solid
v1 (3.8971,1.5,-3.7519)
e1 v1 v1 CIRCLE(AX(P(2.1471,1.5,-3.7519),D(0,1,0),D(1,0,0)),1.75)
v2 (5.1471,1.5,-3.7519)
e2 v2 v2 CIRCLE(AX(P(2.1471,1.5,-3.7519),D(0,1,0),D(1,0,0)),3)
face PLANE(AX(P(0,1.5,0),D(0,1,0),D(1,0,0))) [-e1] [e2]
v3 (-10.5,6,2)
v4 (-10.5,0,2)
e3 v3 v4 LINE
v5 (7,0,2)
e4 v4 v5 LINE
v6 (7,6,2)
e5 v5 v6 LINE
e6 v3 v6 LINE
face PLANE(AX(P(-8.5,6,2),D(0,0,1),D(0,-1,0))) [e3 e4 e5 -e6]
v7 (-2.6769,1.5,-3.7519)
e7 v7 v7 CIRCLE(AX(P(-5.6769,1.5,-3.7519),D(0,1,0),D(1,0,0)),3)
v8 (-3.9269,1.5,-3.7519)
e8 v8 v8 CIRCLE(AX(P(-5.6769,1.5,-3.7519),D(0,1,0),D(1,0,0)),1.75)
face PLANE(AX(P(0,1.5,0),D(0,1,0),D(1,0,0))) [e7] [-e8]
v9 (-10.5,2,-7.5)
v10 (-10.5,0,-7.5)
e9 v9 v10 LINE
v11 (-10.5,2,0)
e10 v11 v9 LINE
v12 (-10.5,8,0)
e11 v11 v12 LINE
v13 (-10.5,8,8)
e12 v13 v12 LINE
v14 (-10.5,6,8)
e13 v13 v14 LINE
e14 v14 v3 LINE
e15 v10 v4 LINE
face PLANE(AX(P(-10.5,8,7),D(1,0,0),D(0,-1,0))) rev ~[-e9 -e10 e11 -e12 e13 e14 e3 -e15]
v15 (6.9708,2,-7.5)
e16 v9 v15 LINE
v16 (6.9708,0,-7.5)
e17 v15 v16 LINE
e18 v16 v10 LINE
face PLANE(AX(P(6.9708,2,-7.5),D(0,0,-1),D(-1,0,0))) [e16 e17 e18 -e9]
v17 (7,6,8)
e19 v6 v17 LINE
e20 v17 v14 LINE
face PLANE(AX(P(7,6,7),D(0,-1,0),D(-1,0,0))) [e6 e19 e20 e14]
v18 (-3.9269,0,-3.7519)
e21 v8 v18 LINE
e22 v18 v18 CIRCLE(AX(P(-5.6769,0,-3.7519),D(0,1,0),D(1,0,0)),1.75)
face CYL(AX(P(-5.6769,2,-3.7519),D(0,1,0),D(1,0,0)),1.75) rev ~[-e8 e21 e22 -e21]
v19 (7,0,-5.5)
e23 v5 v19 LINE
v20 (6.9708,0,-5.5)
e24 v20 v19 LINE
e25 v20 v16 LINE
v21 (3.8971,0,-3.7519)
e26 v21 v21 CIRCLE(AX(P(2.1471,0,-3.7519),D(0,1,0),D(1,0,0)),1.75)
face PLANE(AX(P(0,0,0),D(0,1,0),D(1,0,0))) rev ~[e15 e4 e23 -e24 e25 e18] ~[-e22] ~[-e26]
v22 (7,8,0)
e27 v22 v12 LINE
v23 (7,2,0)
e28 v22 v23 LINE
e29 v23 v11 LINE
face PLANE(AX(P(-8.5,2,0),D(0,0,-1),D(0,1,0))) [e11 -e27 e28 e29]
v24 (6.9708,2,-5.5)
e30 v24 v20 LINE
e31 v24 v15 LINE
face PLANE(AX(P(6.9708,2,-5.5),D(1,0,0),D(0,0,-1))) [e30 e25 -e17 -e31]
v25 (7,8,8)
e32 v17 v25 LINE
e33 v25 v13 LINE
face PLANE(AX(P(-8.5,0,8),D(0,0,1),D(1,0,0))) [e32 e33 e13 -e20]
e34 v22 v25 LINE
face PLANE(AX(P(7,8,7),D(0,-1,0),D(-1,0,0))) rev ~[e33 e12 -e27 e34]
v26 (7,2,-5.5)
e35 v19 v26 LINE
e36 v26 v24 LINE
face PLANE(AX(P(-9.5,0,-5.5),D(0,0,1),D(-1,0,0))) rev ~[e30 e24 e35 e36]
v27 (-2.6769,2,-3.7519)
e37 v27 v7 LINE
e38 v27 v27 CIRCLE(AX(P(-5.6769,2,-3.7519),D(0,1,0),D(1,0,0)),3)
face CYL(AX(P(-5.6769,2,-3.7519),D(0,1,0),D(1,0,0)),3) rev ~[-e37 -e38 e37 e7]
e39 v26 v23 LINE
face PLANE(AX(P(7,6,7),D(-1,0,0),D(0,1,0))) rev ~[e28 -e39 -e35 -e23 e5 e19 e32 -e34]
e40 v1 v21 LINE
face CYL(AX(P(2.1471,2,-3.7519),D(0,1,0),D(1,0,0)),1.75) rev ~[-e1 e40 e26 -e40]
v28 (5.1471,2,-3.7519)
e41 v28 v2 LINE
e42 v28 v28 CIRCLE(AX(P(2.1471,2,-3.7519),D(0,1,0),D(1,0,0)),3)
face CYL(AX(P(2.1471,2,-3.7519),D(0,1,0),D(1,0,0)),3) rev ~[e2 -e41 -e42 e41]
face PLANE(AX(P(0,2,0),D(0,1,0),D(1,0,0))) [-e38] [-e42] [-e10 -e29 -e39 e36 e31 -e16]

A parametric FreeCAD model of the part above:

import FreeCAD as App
import Part
import Sketcher

V = App.Vector

doc = App.newDocument("Part")
body = doc.addObject("PartDesign::Body", "Body")

# Sketch on XZ plane
sketch1 = body.newObject("Sketcher::SketchObject", "Sketch")
sketch1.AttachmentSupport = (doc.getObject("XZ_Plane"), [""])
sketch1.MapMode = "FlatFace"
sketch1.addGeometry([
    Part.LineSegment(V(-10, 0, 0), V(7, 0, 0)),
    Part.LineSegment(V(7, 0, 0), V(7, -6, 0)),
    Part.LineSegment(V(7, -6, 0), V(-10, -6, 0)),
    Part.LineSegment(V(-10, -6, 0), V(-10, 0, 0)),
], False)
sketch1.addConstraint([
    Sketcher.Constraint("Coincident", 0, 2, 1, 1),
    Sketcher.Constraint("Coincident", 1, 2, 2, 1),
    Sketcher.Constraint("Coincident", 2, 2, 3, 1),
    Sketcher.Constraint("Coincident", 3, 2, 0, 1),
    Sketcher.Constraint("Horizontal", 0),
    Sketcher.Constraint("Vertical", 1),
    Sketcher.Constraint("Horizontal", 2),
    Sketcher.Constraint("Vertical", 3),
    Sketcher.Constraint("PointOnObject", 0, 2, -1),
    Sketcher.Constraint("DistanceX", 0, 1, 0, 2, 17.5),
    Sketcher.Constraint("DistanceY", 1, 2, 1, 1, 5.5),
    Sketcher.Constraint("DistanceX", -1, 1, 0, 2, 7.0),
])
pad1 = body.newObject("PartDesign::Pad", "Pad")
pad1.Profile = sketch1
pad1.Length = 2
pad1.Reversed = True

# Sketch on XY plane
sketch2 = body.newObject("Sketcher::SketchObject", "Sketch001")
sketch2.AttachmentSupport = (doc.getObject("XY_Plane"), [""])
sketch2.MapMode = "FlatFace"
sketch2.addGeometry([
    Part.LineSegment(V(5, 0, 0), V(5, 2, 0)),
    Part.LineSegment(V(5, 2, 0), V(-8.5, 2, 0)),
    Part.LineSegment(V(-8.5, 2, 0), V(-8.5, 0, 0)),
    Part.LineSegment(V(-8.5, 0, 0), V(5, 0, 0)),
], False)
sketch2.addConstraint([
    Sketcher.Constraint("Coincident", 0, 2, 1, 1),
    Sketcher.Constraint("Coincident", 1, 2, 2, 1),
    Sketcher.Constraint("Coincident", 2, 2, 3, 1),
    Sketcher.Constraint("Coincident", 3, 2, 0, 1),
    Sketcher.Constraint("Vertical", 0),
    Sketcher.Constraint("Horizontal", 1),
    Sketcher.Constraint("Vertical", 2),
    Sketcher.Constraint("Horizontal", 3),
    Sketcher.Constraint("PointOnObject", 2, 2, -1),
    Sketcher.Constraint("DistanceY", 0, 1, 0, 2, 2.0),
    Sketcher.Constraint("DistanceX", 1, 2, 1, 1, 13.5),
    Sketcher.Constraint("DistanceX", -1, 1, 0, 2, 5.0),
])
pad2 = body.newObject("PartDesign::Pad", "Pad001")
pad2.Profile = sketch2
pad2.Length = 2

# Sketch on XZ plane
sketch3 = body.newObject("Sketcher::SketchObject", "Sketch002")
sketch3.AttachmentSupport = (doc.getObject("XZ_Plane"), [""])
sketch3.MapMode = "FlatFace"
sketch3.AttachmentOffset = App.Placement(V(0, 0, -2), App.Rotation())
sketch3.addGeometry([
    Part.LineSegment(V(-8.5, 0, 0), V(-8.5, 2, 0)),
    Part.LineSegment(V(-8.5, 2, 0), V(5, 2, 0)),
    Part.LineSegment(V(5, 2, 0), V(5, 0, 0)),
    Part.LineSegment(V(5, 0, 0), V(-8.5, 0, 0)),
], False)
sketch3.addConstraint([
    Sketcher.Constraint("Coincident", 0, 2, 1, 1),
    Sketcher.Constraint("Coincident", 1, 2, 2, 1),
    Sketcher.Constraint("Coincident", 2, 2, 3, 1),
    Sketcher.Constraint("Coincident", 3, 2, 0, 1),
    Sketcher.Constraint("Vertical", 0),
    Sketcher.Constraint("Horizontal", 1),
    Sketcher.Constraint("Vertical", 2),
    Sketcher.Constraint("Horizontal", 3),
    Sketcher.Constraint("PointOnObject", 2, 2, -1),
    Sketcher.Constraint("DistanceY", 0, 1, 0, 2, 2.0),
    Sketcher.Constraint("DistanceX", 1, 1, 1, 2, 13.5),
    Sketcher.Constraint("DistanceX", -1, 1, 1, 2, 5.0),
])
pad3 = body.newObject("PartDesign::Pad", "Pad002")
pad3.Profile = sketch3
pad3.Length = 6
pad3.Reversed = True

# Sketch on XY plane
sketch4 = body.newObject("Sketcher::SketchObject", "Sketch003")
sketch4.AttachmentSupport = (doc.getObject("XY_Plane"), [""])
sketch4.MapMode = "FlatFace"
sketch4.AttachmentOffset = App.Placement(V(0, 0, 2), App.Rotation())
sketch4.addGeometry([
    Part.LineSegment(V(-8.5, 8, 0), V(-8.5, 6, 0)),
    Part.LineSegment(V(-8.5, 6, 0), V(5, 6, 0)),
    Part.LineSegment(V(5, 6, 0), V(5, 8, 0)),
    Part.LineSegment(V(5, 8, 0), V(-8.5, 8, 0)),
], False)
sketch4.addConstraint([
    Sketcher.Constraint("Coincident", 0, 2, 1, 1),
    Sketcher.Constraint("Coincident", 1, 2, 2, 1),
    Sketcher.Constraint("Coincident", 2, 2, 3, 1),
    Sketcher.Constraint("Coincident", 3, 2, 0, 1),
    Sketcher.Constraint("Vertical", 0),
    Sketcher.Constraint("Horizontal", 1),
    Sketcher.Constraint("Vertical", 2),
    Sketcher.Constraint("Horizontal", 3),
    Sketcher.Constraint("DistanceY", 0, 2, 0, 1, 2.0),
    Sketcher.Constraint("DistanceX", 1, 1, 1, 2, 13.5),
    Sketcher.Constraint("DistanceY", -1, 1, 0, 2, 6.0),
    Sketcher.Constraint("DistanceX", -1, 1, 1, 2, 5.0),
])
pad4 = body.newObject("PartDesign::Pad", "Pad003")
pad4.Profile = sketch4
pad4.Length = 5

# Sketch on XY plane
sketch5 = body.newObject("Sketcher::SketchObject", "Sketch004")
sketch5.AttachmentSupport = (doc.getObject("XY_Plane"), [""])
sketch5.MapMode = "FlatFace"
sketch5.AttachmentOffset = App.Placement(V(0, 0, -5.5), App.Rotation())
sketch5.addGeometry([
    Part.LineSegment(V(5, 0, 0), V(-8.5, 0, 0)),
    Part.LineSegment(V(-8.5, 0, 0), V(-8.5, 2, 0)),
    Part.LineSegment(V(-8.5, 2, 0), V(5, 2, 0)),
    Part.LineSegment(V(5, 2, 0), V(5, 0, 0)),
], False)
sketch5.addConstraint([
    Sketcher.Constraint("Coincident", 0, 2, 1, 1),
    Sketcher.Constraint("Coincident", 1, 2, 2, 1),
    Sketcher.Constraint("Coincident", 2, 2, 3, 1),
    Sketcher.Constraint("Coincident", 3, 2, 0, 1),
    Sketcher.Constraint("Horizontal", 0),
    Sketcher.Constraint("Vertical", 1),
    Sketcher.Constraint("Horizontal", 2),
    Sketcher.Constraint("Vertical", 3),
    Sketcher.Constraint("PointOnObject", 0, 2, -1),
    Sketcher.Constraint("DistanceY", 1, 1, 1, 2, 2.0),
    Sketcher.Constraint("DistanceX", 0, 2, 0, 1, 13.5),
    Sketcher.Constraint("DistanceX", -1, 1, 2, 2, 5.0),
])
pad5 = body.newObject("PartDesign::Pad", "Pad004")
pad5.Profile = sketch5
pad5.Length = 2
pad5.Reversed = True

# Sketch on YZ plane
sketch6 = body.newObject("Sketcher::SketchObject", "Sketch005")
sketch6.AttachmentSupport = (doc.getObject("YZ_Plane"), [""])
sketch6.MapMode = "FlatFace"
sketch6.AttachmentOffset = App.Placement(V(0, 0, 5), App.Rotation())
sketch6.addGeometry([
    Part.LineSegment(V(8, 0, 0), V(8, 7, 0)),  # 0
    Part.LineSegment(V(8, 7, 0), V(6, 7, 0)),  # 1
    Part.LineSegment(V(6, 7, 0), V(6, 2, 0)),  # 2
    Part.LineSegment(V(6, 2, 0), V(0, 2, 0)),  # 3
    Part.LineSegment(V(0, 2, 0), V(0, 0, 0)),  # 4
    Part.LineSegment(V(0, 0, 0), V(8, 0, 0)),  # 5
], False)
sketch6.addConstraint([
    Sketcher.Constraint("Coincident", 0, 2, 1, 1),
    Sketcher.Constraint("Coincident", 1, 2, 2, 1),
    Sketcher.Constraint("Coincident", 2, 2, 3, 1),
    Sketcher.Constraint("Coincident", 3, 2, 4, 1),
    Sketcher.Constraint("Coincident", 4, 2, 5, 1),
    Sketcher.Constraint("Coincident", 5, 2, 0, 1),
    Sketcher.Constraint("Vertical", 0),
    Sketcher.Constraint("Horizontal", 1),
    Sketcher.Constraint("Vertical", 2),
    Sketcher.Constraint("Horizontal", 3),
    Sketcher.Constraint("Vertical", 4),
    Sketcher.Constraint("Horizontal", 5),
    Sketcher.Constraint("Coincident", 4, 2, -1, 1),
    Sketcher.Constraint("Equal", 1, 4),
    Sketcher.Constraint("DistanceX", 1, 2, 1, 1, 2.0),
    Sketcher.Constraint("DistanceX", 3, 2, 3, 1, 6.0),
    Sketcher.Constraint("DistanceY", 0, 1, 0, 2, 7.0),
])
pad6 = body.newObject("PartDesign::Pad", "Pad005")
pad6.Profile = sketch6
pad6.Length = 2

# Sketch on YZ plane
sketch7 = body.newObject("Sketcher::SketchObject", "Sketch006")
sketch7.AttachmentSupport = (doc.getObject("YZ_Plane"), [""])
sketch7.MapMode = "FlatFace"
sketch7.AttachmentOffset = App.Placement(V(0, 0, -8.5), App.Rotation())
sketch7.addGeometry([
    Part.LineSegment(V(8, 7, 0), V(8, 0, 0)),  # 0
    Part.LineSegment(V(8, 0, 0), V(0, 0, 0)),  # 1
    Part.LineSegment(V(0, 0, 0), V(0, 2, 0)),  # 2
    Part.LineSegment(V(0, 2, 0), V(6, 2, 0)),  # 3
    Part.LineSegment(V(6, 2, 0), V(6, 7, 0)),  # 4
    Part.LineSegment(V(6, 7, 0), V(8, 7, 0)),  # 5
], False)
sketch7.addConstraint([
    Sketcher.Constraint("Coincident", 0, 2, 1, 1),
    Sketcher.Constraint("Coincident", 1, 2, 2, 1),
    Sketcher.Constraint("Coincident", 2, 2, 3, 1),
    Sketcher.Constraint("Coincident", 3, 2, 4, 1),
    Sketcher.Constraint("Coincident", 4, 2, 5, 1),
    Sketcher.Constraint("Coincident", 5, 2, 0, 1),
    Sketcher.Constraint("Vertical", 0),
    Sketcher.Constraint("Horizontal", 1),
    Sketcher.Constraint("Vertical", 2),
    Sketcher.Constraint("Horizontal", 3),
    Sketcher.Constraint("Vertical", 4),
    Sketcher.Constraint("Horizontal", 5),
    Sketcher.Constraint("Coincident", 1, 2, -1, 1),
    Sketcher.Constraint("Equal", 5, 2),
    Sketcher.Constraint("DistanceX", 1, 2, 1, 1, 8.0),
    Sketcher.Constraint("DistanceX", 3, 1, 3, 2, 6.0),
    Sketcher.Constraint("DistanceY", 0, 2, 0, 1, 7.0),
])
pad7 = body.newObject("PartDesign::Pad", "Pad006")
pad7.Profile = sketch7
pad7.Length = 2
pad7.Reversed = True

# Sketch on XZ plane
sketch8 = body.newObject("Sketcher::SketchObject", "Sketch007")
sketch8.AttachmentSupport = (doc.getObject("XZ_Plane"), [""])
sketch8.MapMode = "FlatFace"
sketch8.AttachmentOffset = App.Placement(V(0, 0, -2), App.Rotation())
sketch8.addGeometry([
    Part.LineSegment(V(-10.5, -5.5, 0), V(7, -5.5, 0)),
    Part.LineSegment(V(7, -5.5, 0), V(7, -7.5, 0)),
    Part.LineSegment(V(7, -7.5, 0), V(-10.5, -7.5, 0)),
    Part.LineSegment(V(-10.5, -7.5, 0), V(-10.5, -5.5, 0)),
], False)
sketch8.addConstraint([
    Sketcher.Constraint("Coincident", 0, 2, 1, 1),
    Sketcher.Constraint("Coincident", 1, 2, 2, 1),
    Sketcher.Constraint("Coincident", 2, 2, 3, 1),
    Sketcher.Constraint("Coincident", 3, 2, 0, 1),
    Sketcher.Constraint("Horizontal", 0),
    Sketcher.Constraint("Vertical", 1),
    Sketcher.Constraint("Horizontal", 2),
    Sketcher.Constraint("Vertical", 3),
    Sketcher.Constraint("DistanceY", 1, 2, 1, 1, 2.0),
    Sketcher.Constraint("DistanceY", 0, 2, -1, 1, 5.5),
    Sketcher.Constraint("DistanceX", 2, 2, -1, 1, 10.5),
    Sketcher.Constraint("DistanceX", 0, 1, 0, 2, 17.4708),
])
pad8 = body.newObject("PartDesign::Pad", "Pad007")
pad8.Profile = sketch8
pad8.Length = 2

# Sketch on XZ plane
sketch9 = body.newObject("Sketcher::SketchObject", "Sketch008")
sketch9.AttachmentSupport = (doc.getObject("XZ_Plane"), [""])
sketch9.MapMode = "FlatFace"
sketch9.AttachmentOffset = App.Placement(V(0, 0, -2), App.Rotation())
sketch9.addGeometry([
    Part.Circle(V(2.1, -3.8, 0), V(0, 0, 1), 1.8),
    Part.Circle(V(-5.7, -3.8, 0), V(0, 0, 1), 1.8),
], False)
sketch9.addConstraint([
    Sketcher.Constraint("Equal", 0, 1),
    Sketcher.Constraint("Horizontal", 0, 3, 1, 3),
    Sketcher.Constraint("Diameter", 0, 3.5),
    Sketcher.Constraint("DistanceX", -1, 1, 0, 3, 2.147),
    Sketcher.Constraint("DistanceY", 0, 3, -1, 1, 3.752),
    Sketcher.Constraint("DistanceX", 1, 3, -1, 1, 5.677),
])
pocket1 = body.newObject("PartDesign::Pocket", "Pocket")
pocket1.Profile = sketch9
pocket1.Length = 2
pocket1.Reversed = True

# Sketch on XZ plane
sketch10 = body.newObject("Sketcher::SketchObject", "Sketch009")
sketch10.AttachmentSupport = (doc.getObject("XZ_Plane"), [""])
sketch10.MapMode = "FlatFace"
sketch10.AttachmentOffset = App.Placement(V(0, 0, -2), App.Rotation())
sketch10.addGeometry([
    Part.Circle(V(2.1, -3.8, 0), V(0, 0, 1), 3),
    Part.Circle(V(2.1, -3.8, 0), V(0, 0, 1), 1.8),
    Part.Circle(V(-5.7, -3.8, 0), V(0, 0, 1), 3),
    Part.Circle(V(-5.7, -3.8, 0), V(0, 0, 1), 1.8),
], False)
sketch10.addConstraint([
    Sketcher.Constraint("Coincident", 1, 3, 0, 3),
    Sketcher.Constraint("Coincident", 3, 3, 2, 3),
    Sketcher.Constraint("Equal", 0, 2),
    Sketcher.Constraint("Equal", 1, 3),
    Sketcher.Constraint("Horizontal", 1, 3, 2, 3),
    Sketcher.Constraint("Diameter", 0, 6.0),
    Sketcher.Constraint("Diameter", 1, 3.5),
    Sketcher.Constraint("DistanceX", -1, 1, 0, 3, 2.147),
    Sketcher.Constraint("DistanceY", 0, 3, -1, 1, 3.752),
    Sketcher.Constraint("DistanceX", 2, 3, -1, 1, 5.677),
])
pocket2 = body.newObject("PartDesign::Pocket", "Pocket001")
pocket2.Profile = sketch10
pocket2.Length = 0.5
pocket2.Reversed = True

# Sketch on XY plane
sketch11 = body.newObject("Sketcher::SketchObject", "Sketch010")
sketch11.AttachmentSupport = (doc.getObject("XY_Plane"), [""])
sketch11.MapMode = "FlatFace"
sketch11.AttachmentOffset = App.Placement(V(0, 0, 7), App.Rotation())
sketch11.addGeometry([
    Part.LineSegment(V(-10.5, 6, 0), V(7, 6, 0)),
    Part.LineSegment(V(7, 6, 0), V(7, 8, 0)),
    Part.LineSegment(V(7, 8, 0), V(-10.5, 8, 0)),
    Part.LineSegment(V(-10.5, 8, 0), V(-10.5, 6, 0)),
], False)
sketch11.addConstraint([
    Sketcher.Constraint("Coincident", 0, 2, 1, 1),
    Sketcher.Constraint("Coincident", 1, 2, 2, 1),
    Sketcher.Constraint("Coincident", 2, 2, 3, 1),
    Sketcher.Constraint("Coincident", 3, 2, 0, 1),
    Sketcher.Constraint("Horizontal", 0),
    Sketcher.Constraint("Vertical", 1),
    Sketcher.Constraint("Horizontal", 2),
    Sketcher.Constraint("Vertical", 3),
    Sketcher.Constraint("DistanceY", 1, 1, 1, 2, 2.0),
    Sketcher.Constraint("DistanceX", 0, 1, 0, 2, 17.5),
    Sketcher.Constraint("DistanceX", -1, 1, 0, 2, 7.0),
    Sketcher.Constraint("DistanceY", -1, 1, 0, 2, 6.0),
])
pad9 = body.newObject("PartDesign::Pad", "Pad008")
pad9.Profile = sketch11
pad9.Length = 1

doc.recompute()
